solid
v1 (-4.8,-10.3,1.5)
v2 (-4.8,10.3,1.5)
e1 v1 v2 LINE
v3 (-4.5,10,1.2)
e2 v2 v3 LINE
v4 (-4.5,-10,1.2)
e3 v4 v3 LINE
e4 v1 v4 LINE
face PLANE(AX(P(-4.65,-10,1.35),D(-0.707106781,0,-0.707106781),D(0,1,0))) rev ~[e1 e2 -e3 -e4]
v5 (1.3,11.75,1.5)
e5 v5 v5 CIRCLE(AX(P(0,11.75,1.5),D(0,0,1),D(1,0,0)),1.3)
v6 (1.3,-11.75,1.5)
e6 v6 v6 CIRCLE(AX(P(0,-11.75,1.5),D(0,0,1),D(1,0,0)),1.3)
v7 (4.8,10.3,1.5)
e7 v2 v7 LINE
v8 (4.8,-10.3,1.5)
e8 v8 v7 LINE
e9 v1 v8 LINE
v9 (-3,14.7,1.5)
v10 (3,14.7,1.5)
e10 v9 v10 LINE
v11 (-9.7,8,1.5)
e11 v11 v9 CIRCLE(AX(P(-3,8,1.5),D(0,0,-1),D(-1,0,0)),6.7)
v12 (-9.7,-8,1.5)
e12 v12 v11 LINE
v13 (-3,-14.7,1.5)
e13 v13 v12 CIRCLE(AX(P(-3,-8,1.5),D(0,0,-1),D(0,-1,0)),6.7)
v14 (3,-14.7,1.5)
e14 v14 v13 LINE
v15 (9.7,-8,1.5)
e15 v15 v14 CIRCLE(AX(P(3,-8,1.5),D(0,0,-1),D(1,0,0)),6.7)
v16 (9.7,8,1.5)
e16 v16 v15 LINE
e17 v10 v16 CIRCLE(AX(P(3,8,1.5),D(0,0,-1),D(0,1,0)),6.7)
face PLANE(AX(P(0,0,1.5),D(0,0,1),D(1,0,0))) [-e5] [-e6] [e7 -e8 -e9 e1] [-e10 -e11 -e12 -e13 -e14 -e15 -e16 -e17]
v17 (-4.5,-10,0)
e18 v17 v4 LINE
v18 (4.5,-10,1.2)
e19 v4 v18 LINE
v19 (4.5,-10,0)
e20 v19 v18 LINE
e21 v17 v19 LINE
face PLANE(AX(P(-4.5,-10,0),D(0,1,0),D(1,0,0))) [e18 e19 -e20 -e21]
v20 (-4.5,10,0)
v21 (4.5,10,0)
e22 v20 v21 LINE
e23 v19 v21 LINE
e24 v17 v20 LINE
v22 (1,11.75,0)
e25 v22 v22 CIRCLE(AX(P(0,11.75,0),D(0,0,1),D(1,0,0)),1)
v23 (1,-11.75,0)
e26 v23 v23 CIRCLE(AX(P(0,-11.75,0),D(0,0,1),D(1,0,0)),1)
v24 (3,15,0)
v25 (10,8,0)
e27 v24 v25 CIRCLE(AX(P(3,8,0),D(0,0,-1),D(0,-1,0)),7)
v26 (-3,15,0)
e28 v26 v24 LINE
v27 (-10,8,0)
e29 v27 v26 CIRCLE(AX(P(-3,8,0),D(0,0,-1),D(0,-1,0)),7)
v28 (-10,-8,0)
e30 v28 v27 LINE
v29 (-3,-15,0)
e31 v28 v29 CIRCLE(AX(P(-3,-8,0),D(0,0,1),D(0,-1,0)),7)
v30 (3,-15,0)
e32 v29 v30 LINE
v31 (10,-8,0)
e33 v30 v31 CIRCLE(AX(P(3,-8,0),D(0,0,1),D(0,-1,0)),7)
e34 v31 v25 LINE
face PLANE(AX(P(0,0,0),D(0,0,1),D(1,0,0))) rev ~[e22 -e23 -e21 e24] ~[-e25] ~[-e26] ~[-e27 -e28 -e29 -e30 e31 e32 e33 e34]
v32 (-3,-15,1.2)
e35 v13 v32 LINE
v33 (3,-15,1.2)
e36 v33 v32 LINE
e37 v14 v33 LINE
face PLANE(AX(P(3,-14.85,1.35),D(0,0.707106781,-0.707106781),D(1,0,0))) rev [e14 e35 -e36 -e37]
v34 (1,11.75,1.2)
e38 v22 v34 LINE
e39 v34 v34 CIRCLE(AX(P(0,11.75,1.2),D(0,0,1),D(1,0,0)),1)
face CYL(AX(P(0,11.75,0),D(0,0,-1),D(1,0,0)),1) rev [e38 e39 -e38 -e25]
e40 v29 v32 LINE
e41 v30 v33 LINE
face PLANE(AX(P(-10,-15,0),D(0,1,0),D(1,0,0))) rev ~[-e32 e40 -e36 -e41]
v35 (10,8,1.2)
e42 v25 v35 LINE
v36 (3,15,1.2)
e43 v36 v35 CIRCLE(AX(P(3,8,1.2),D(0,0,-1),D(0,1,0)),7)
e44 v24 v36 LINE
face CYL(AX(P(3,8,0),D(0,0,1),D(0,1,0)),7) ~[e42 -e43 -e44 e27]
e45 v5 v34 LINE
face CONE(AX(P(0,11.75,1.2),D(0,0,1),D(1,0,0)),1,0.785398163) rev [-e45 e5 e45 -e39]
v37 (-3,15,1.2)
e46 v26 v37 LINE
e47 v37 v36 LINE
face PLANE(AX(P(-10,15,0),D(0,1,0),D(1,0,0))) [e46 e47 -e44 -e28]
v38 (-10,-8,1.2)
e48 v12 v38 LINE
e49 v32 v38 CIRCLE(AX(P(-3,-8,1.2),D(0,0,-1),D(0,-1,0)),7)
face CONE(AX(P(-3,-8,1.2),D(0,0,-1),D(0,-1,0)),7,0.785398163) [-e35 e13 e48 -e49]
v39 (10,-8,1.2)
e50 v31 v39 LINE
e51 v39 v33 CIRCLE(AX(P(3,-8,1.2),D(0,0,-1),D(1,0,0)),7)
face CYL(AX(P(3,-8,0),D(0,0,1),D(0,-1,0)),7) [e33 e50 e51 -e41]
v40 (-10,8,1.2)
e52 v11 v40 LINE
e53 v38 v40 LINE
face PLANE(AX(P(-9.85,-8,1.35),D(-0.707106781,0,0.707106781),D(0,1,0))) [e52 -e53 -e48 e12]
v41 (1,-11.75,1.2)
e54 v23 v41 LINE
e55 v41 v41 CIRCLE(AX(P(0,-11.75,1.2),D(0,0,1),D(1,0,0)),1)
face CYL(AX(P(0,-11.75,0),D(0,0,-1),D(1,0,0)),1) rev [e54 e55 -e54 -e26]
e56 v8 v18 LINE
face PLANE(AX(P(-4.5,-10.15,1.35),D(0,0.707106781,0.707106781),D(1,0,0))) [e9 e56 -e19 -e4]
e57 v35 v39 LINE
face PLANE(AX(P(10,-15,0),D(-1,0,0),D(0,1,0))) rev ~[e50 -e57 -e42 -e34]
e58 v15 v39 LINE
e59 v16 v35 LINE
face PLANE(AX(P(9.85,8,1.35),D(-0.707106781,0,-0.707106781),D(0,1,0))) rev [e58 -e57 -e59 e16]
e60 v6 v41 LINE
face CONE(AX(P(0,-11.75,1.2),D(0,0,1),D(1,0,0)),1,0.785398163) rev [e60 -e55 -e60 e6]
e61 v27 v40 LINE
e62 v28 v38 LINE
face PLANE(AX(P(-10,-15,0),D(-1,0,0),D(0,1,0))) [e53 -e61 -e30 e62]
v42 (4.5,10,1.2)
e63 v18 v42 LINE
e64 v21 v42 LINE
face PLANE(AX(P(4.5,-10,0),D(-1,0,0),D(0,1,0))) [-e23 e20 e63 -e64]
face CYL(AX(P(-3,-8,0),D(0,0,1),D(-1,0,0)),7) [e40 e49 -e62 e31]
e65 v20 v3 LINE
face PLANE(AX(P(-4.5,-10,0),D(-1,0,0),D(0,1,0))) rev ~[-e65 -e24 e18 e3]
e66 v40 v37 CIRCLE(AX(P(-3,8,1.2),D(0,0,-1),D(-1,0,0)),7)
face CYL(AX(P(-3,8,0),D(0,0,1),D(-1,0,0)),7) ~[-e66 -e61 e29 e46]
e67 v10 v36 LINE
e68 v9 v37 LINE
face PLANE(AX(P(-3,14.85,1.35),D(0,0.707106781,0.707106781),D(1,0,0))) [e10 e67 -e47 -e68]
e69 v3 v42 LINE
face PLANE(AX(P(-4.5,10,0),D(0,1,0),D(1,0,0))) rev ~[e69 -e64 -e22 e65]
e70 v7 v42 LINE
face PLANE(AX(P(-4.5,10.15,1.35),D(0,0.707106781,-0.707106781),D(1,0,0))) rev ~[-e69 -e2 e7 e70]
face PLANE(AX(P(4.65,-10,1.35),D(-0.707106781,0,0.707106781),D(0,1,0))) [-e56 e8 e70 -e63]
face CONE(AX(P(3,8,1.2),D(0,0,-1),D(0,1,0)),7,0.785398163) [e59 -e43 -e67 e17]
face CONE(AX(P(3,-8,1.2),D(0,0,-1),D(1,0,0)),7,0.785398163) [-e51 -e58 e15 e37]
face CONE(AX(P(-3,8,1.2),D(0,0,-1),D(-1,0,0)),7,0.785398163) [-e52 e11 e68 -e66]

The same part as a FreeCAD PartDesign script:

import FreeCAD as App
import Part
import Sketcher

V = App.Vector


def edges_at(feature, points):
    """Names of the edges that pass closest to the given points."""
    edges = feature.Shape.Edges
    near = lambda p: min(range(len(edges)), key=lambda i: edges[i].distToShape(Part.Vertex(*p))[0])
    return sorted({f"Edge{near(p) + 1}" for p in points})

doc = App.newDocument("Part")
body = doc.addObject("PartDesign::Body", "Body")

sketch1 = doc.addObject("Sketcher::SketchObject", "Sketch")
body.addObject(sketch1)
sketch1.AttachmentSupport = (doc.XY_Plane, [""])
sketch1.MapMode = "FlatFace"
sketch1.addGeometry([
    Part.LineSegment(V(-10, 15, 0), V(-10, -15, 0)),
    Part.LineSegment(V(-10, -15, 0), V(10, -15, 0)),
    Part.LineSegment(V(10, -15, 0), V(10, 15, 0)),
    Part.LineSegment(V(10, 15, 0), V(-10, 15, 0)),
    Part.Circle(V(0, -11.8, 0), V(0, 0, 1), 1),
    Part.LineSegment(V(4.5, -10, 0), V(-4.5, -10, 0)),
    Part.LineSegment(V(-4.5, -10, 0), V(-4.5, 10, 0)),
    Part.LineSegment(V(-4.5, 10, 0), V(4.5, 10, 0)),
    Part.LineSegment(V(4.5, 10, 0), V(4.5, -10, 0)),
    Part.Circle(V(0, 11.8, 0), V(0, 0, 1), 1),
], False)
sketch1.addConstraint([
    Sketcher.Constraint("Coincident", 0, 2, 1, 1),
    Sketcher.Constraint("Coincident", 1, 2, 2, 1),
    Sketcher.Constraint("Coincident", 2, 2, 3, 1),
    Sketcher.Constraint("Coincident", 3, 2, 0, 1),
    Sketcher.Constraint("Coincident", 5, 2, 6, 1),
    Sketcher.Constraint("Coincident", 6, 2, 7, 1),
    Sketcher.Constraint("Coincident", 7, 2, 8, 1),
    Sketcher.Constraint("Coincident", 8, 2, 5, 1),
    Sketcher.Constraint("Vertical", 0),
    Sketcher.Constraint("Horizontal", 1),
    Sketcher.Constraint("Vertical", 2),
    Sketcher.Constraint("Horizontal", 3),
    Sketcher.Constraint("Horizontal", 5),
    Sketcher.Constraint("Vertical", 6),
    Sketcher.Constraint("Horizontal", 7),
    Sketcher.Constraint("Vertical", 8),
    Sketcher.Constraint("Equal", 4, 9),
    Sketcher.Constraint("Symmetric", 4, 3, 9, 3, -1, 1),
    Sketcher.Constraint("Symmetric", 0, 2, 2, 2, -1, 1),
    Sketcher.Constraint("Symmetric", 5, 2, 7, 2, -1, 1),
    Sketcher.Constraint("PointOnObject", 4, 3, -2),
    Sketcher.Constraint("Equal", 3, 6),
    Sketcher.Constraint("Diameter", 4, 2.0),
    Sketcher.Constraint("DistanceX", 1, 1, 1, 2, 20.0),
    Sketcher.Constraint("DistanceX", 5, 2, 5, 1, 9.0),
    Sketcher.Constraint("DistanceY", 0, 2, 0, 1, 30.0),
    Sketcher.Constraint("DistanceY", 4, 3, 9, 3, 23.5),
])
pad1 = doc.addObject("PartDesign::Pad", "Pad")
body.addObject(pad1)
pad1.Profile = sketch1
pad1.Length = 1.5
doc.recompute()

fillet = doc.addObject("PartDesign::Fillet", "Fillet")
body.addObject(fillet)
fillet.Base = (pad1, edges_at(pad1, [
    (-10, -15, 0.75),
    (10, -15, 0.75),
    (10, 15, 0.75),
    (-10, 15, 0.75),
]))
fillet.Radius = 7
doc.recompute()

chamfer = doc.addObject("PartDesign::Chamfer", "Chamfer")
body.addObject(chamfer)
chamfer.Base = (fillet, edges_at(fillet, [
    (-1, -11.75, 1.5),
    (-1, 11.75, 1.5),
    (0, 10, 1.5),
    (-4.5, 0, 1.5),
    (0, -10, 1.5),
    (4.5, 0, 1.5),
    (0, 15, 1.5),
    (-7.95, 12.95, 1.5),
    (-10, 0, 1.5),
    (7.95, 12.95, 1.5),
    (10, 0, 1.5),
    (7.95, -12.95, 1.5),
    (0, -15, 1.5),
    (-7.95, -12.95, 1.5),
]))
chamfer.Size = 0.3

doc.recompute()
